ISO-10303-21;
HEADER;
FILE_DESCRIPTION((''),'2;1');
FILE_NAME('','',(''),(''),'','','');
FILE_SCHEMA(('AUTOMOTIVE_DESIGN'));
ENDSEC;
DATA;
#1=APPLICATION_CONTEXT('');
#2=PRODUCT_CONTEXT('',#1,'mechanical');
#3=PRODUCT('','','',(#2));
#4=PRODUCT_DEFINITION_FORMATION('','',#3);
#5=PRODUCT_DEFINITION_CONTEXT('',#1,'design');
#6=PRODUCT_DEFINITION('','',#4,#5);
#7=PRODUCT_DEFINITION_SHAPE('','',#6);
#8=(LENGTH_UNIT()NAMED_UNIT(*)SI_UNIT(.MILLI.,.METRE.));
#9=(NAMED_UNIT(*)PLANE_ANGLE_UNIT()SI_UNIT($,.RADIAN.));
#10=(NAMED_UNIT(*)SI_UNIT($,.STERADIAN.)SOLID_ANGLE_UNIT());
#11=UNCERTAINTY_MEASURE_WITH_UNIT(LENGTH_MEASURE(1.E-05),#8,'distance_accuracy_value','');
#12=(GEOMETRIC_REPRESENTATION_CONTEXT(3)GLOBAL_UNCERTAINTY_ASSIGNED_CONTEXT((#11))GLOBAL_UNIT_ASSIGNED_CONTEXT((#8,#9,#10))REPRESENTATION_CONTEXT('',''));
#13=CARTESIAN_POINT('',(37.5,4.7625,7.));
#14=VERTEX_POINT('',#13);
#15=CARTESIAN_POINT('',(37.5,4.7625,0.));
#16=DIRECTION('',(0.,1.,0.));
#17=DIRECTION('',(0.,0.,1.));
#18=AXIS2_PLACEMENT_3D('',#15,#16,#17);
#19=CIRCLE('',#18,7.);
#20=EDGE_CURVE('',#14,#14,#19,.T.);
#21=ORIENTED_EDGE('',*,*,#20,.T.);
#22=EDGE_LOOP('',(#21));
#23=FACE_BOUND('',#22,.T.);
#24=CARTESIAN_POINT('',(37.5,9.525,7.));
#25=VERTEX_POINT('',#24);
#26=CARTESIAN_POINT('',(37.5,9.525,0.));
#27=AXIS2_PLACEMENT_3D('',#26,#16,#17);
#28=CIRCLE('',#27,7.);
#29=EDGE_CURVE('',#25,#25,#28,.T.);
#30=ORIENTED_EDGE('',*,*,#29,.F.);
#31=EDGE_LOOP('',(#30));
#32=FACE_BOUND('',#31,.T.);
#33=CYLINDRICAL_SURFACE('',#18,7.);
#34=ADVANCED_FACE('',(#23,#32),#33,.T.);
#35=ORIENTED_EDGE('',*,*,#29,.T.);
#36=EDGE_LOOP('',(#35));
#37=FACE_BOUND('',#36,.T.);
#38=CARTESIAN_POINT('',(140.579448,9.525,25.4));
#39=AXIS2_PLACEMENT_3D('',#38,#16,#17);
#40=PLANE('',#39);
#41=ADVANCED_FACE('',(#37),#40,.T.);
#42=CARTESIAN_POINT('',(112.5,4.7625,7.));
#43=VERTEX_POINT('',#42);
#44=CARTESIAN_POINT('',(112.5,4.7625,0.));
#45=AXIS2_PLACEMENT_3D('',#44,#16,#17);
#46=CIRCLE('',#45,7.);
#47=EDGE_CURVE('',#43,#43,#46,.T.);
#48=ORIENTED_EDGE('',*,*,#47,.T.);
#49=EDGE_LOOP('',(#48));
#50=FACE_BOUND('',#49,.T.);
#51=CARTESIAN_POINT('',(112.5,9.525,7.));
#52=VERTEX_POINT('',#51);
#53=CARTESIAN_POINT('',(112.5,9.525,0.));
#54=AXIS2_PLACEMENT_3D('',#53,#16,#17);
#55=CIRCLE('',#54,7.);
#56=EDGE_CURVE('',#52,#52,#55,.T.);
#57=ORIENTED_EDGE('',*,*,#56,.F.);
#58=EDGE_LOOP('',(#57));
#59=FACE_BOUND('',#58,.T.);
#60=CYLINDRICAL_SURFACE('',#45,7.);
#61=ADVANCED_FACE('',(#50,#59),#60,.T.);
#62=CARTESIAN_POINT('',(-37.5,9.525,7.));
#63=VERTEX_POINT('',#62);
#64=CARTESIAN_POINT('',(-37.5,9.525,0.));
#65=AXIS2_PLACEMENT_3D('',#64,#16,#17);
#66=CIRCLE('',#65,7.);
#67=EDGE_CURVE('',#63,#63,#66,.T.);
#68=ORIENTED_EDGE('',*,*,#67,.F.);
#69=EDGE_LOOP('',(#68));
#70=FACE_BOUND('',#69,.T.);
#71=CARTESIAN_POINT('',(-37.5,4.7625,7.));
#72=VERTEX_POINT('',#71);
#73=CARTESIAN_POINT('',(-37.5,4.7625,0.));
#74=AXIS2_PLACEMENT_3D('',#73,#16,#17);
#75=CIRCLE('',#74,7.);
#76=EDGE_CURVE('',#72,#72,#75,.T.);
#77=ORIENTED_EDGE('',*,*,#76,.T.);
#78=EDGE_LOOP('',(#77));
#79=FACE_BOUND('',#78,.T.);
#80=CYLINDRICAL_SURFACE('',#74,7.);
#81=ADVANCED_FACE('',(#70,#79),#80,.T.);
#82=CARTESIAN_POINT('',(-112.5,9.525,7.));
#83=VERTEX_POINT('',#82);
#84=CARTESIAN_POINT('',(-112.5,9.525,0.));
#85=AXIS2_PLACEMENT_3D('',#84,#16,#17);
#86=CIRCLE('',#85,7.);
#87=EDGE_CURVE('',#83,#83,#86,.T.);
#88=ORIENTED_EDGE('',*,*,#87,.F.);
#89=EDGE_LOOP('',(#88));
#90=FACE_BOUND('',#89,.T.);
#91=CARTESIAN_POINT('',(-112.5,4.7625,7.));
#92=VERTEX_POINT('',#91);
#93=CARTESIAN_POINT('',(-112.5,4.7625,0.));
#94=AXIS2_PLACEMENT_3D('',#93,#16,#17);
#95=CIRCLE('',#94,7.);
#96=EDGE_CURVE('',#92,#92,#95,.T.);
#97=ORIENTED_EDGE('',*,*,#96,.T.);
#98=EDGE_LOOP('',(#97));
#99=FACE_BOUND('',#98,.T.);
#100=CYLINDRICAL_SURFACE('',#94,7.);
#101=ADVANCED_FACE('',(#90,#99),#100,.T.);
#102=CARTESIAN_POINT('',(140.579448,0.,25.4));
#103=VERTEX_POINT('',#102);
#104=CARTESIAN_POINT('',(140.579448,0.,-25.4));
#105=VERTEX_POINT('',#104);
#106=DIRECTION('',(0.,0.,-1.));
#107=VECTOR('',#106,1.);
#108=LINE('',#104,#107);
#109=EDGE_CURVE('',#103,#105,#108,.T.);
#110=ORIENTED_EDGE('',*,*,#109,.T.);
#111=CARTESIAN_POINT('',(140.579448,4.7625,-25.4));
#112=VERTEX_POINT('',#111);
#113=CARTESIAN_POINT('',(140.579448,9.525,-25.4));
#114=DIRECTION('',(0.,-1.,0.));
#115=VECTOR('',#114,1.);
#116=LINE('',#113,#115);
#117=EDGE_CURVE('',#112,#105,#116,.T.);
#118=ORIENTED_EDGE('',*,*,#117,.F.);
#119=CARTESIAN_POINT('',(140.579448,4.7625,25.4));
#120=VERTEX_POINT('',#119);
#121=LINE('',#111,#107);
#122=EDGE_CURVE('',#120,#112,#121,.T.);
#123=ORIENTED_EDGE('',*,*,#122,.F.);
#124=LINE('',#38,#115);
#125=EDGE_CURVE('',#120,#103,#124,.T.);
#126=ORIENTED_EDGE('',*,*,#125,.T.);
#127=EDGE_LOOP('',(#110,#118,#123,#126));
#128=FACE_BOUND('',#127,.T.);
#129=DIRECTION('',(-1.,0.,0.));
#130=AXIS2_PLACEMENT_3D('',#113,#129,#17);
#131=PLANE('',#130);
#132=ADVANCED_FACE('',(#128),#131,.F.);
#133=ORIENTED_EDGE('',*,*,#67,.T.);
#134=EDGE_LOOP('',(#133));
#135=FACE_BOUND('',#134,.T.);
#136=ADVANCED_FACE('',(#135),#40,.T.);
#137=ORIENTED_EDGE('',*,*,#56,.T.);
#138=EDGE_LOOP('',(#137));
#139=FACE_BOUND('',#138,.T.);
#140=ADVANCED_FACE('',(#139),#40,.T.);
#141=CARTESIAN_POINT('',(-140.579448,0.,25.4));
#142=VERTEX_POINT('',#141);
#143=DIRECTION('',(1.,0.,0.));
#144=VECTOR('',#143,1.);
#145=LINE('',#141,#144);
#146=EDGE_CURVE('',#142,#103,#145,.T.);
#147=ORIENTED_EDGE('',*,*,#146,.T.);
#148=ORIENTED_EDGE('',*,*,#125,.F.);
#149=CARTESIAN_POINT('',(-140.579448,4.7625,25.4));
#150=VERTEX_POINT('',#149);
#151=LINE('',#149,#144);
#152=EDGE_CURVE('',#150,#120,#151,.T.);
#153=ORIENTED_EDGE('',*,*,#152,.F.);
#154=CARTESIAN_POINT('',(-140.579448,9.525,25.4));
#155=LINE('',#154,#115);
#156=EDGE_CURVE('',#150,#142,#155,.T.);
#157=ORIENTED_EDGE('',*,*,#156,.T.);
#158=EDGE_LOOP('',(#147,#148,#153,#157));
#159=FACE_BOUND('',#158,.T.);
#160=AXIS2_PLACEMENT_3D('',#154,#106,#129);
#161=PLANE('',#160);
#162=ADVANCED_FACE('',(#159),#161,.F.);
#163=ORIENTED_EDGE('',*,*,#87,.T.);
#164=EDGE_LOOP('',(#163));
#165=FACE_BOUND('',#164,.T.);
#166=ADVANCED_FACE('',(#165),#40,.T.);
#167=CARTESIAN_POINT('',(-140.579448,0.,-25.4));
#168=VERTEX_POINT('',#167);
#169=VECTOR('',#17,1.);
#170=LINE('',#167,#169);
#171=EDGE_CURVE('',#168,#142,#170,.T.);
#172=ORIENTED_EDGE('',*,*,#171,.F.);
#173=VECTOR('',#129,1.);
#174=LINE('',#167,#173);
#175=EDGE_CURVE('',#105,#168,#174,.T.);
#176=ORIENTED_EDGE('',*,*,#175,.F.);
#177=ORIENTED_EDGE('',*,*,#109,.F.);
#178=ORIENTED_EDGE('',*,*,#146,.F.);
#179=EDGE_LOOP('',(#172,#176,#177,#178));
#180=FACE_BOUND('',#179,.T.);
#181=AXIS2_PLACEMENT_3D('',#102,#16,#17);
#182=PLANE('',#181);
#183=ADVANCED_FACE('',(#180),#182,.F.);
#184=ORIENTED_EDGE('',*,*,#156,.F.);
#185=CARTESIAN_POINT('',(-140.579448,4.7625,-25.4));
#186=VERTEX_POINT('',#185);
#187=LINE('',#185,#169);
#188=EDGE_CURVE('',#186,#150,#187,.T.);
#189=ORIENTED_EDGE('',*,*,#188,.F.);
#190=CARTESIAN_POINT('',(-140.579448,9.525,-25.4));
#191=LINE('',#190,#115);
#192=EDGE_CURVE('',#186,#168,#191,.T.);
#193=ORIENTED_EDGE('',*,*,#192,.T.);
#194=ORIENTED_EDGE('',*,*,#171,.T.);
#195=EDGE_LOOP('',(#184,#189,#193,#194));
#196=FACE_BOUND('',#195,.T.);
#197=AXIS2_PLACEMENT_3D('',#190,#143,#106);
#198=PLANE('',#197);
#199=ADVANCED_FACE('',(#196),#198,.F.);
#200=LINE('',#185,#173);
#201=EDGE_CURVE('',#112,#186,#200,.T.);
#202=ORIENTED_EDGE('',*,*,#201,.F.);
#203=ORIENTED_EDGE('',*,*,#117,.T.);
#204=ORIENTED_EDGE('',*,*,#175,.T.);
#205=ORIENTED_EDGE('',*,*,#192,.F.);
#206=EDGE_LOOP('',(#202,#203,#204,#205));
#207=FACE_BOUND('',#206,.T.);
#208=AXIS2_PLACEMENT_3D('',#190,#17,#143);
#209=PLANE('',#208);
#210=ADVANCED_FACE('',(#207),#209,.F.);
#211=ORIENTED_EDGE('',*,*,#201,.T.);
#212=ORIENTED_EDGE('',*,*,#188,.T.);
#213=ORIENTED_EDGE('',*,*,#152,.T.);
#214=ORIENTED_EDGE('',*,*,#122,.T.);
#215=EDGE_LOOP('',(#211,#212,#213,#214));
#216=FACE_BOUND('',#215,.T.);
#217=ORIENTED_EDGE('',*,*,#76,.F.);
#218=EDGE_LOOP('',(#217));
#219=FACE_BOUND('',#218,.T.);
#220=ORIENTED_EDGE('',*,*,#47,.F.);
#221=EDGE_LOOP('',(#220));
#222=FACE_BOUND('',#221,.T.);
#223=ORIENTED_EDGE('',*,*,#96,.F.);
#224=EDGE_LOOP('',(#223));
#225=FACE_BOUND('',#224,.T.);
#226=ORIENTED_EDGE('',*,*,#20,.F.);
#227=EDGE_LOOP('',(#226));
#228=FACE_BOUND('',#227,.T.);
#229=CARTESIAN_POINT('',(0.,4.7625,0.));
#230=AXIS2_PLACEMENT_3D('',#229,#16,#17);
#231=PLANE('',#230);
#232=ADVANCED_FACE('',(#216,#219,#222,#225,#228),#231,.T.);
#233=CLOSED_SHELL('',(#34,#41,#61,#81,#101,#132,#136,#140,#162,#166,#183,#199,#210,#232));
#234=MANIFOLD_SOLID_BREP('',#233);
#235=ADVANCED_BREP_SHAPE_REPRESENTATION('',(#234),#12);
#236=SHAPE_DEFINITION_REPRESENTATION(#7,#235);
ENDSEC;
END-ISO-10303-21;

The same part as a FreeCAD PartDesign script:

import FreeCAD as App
import Part
import Sketcher
Q = App.Units.Quantity

doc = App.newDocument("Part")
params = doc.addObject("Spreadsheet::Sheet", "Params")
for row, (alias, value) in enumerate([
    ("sketch1_height", "2 in"),
    ("pad1_length", "0.375 in"),
    ("pocket1_length", "0.1875 in"),
], start=1):
    params.set(f"A{row}", alias)
    params.set(f"B{row}", "=" + value)
    params.setAlias(f"B{row}", alias)

body = doc.addObject("PartDesign::Body", "Body")

# Sketch on XZ plane
sketch1 = body.newObject("Sketcher::SketchObject", "Sketch")
sketch1.AttachmentSupport = (doc.getObject("XZ_Plane"), [""])
sketch1.MapMode = "FlatFace"
sketch1.addGeometry([
    Part.LineSegment(App.Vector(-140.579448, -25.4, 0), App.Vector(-140.579448, 25.4, 0)),
    Part.LineSegment(App.Vector(-140.579448, 25.4, 0), App.Vector(140.579448, 25.4, 0)),
    Part.LineSegment(App.Vector(140.579448, 25.4, 0), App.Vector(140.579448, -25.4, 0)),
    Part.LineSegment(App.Vector(140.579448, -25.4, 0), App.Vector(-140.579448, -25.4, 0)),
], False)
sketch1.addConstraint([
    Sketcher.Constraint("Coincident", 0, 2, 1, 1),
    Sketcher.Constraint("Coincident", 1, 2, 2, 1),
    Sketcher.Constraint("Coincident", 2, 2, 3, 1),
    Sketcher.Constraint("Coincident", 3, 2, 0, 1),
    Sketcher.Constraint("Vertical", 0),
    Sketcher.Constraint("Horizontal", 1),
    Sketcher.Constraint("Vertical", 2),
    Sketcher.Constraint("Horizontal", 3),
    Sketcher.Constraint("Symmetric", 0, 2, 2, 2, -1, 1),
    Sketcher.Constraint("DistanceY", 0, 1, 0, 2, Q("2 in")),
    Sketcher.Constraint("DistanceX", 1, 1, 1, 2, Q("281.158897 mm")),
])
sketch1.setExpression("Constraints[9]", "Params.sketch1_height")
pad1 = body.newObject("PartDesign::Pad", "Pad")
pad1.Profile = sketch1
pad1.setExpression("Length", "Params.pad1_length")
pad1.Reversed = True

# Sketch on XZ plane
sketch2 = body.newObject("Sketcher::SketchObject", "Sketch001")
sketch2.AttachmentSupport = (doc.getObject("XZ_Plane"), [""])
sketch2.MapMode = "FlatFace"
sketch2.AttachmentOffset = App.Placement(App.Vector(0, 0, -0.375 * 25.4), App.Rotation())
sketch2.addGeometry([
    Part.LineSegment(App.Vector(-170.166, -54.987, 0), App.Vector(-170.166, 54.987, 0)),  # 0
    Part.LineSegment(App.Vector(-170.166, 54.987, 0), App.Vector(170.166, 54.987, 0)),  # 1
    Part.LineSegment(App.Vector(170.166, 54.987, 0), App.Vector(170.166, -54.987, 0)),  # 2
    Part.LineSegment(App.Vector(170.166, -54.987, 0), App.Vector(-170.166, -54.987, 0)),  # 3
    Part.Circle(App.Vector(-112.5, 0, 0), App.Vector(0, 0, 1), 7),  # 4
    Part.Circle(App.Vector(-37.5, 0, 0), App.Vector(0, 0, 1), 7),  # 5
    Part.Circle(App.Vector(37.5, 0, 0), App.Vector(0, 0, 1), 7),  # 6
    Part.Circle(App.Vector(112.5, 0, 0), App.Vector(0, 0, 1), 7),  # 7
], False)
sketch2.addConstraint([
    Sketcher.Constraint("Coincident", 0, 2, 1, 1),
    Sketcher.Constraint("Coincident", 1, 2, 2, 1),
    Sketcher.Constraint("Coincident", 2, 2, 3, 1),
    Sketcher.Constraint("Coincident", 3, 2, 0, 1),
    Sketcher.Constraint("Vertical", 0),
    Sketcher.Constraint("Horizontal", 1),
    Sketcher.Constraint("Vertical", 2),
    Sketcher.Constraint("Horizontal", 3),
    Sketcher.Constraint("Equal", 4, 5),
    Sketcher.Constraint("Equal", 5, 6),
    Sketcher.Constraint("Equal", 6, 7),
    Sketcher.Constraint("Symmetric", 5, 3, 6, 3, -1, 1),
    Sketcher.Constraint("Symmetric", 4, 3, 7, 3, -1, 1),
    Sketcher.Constraint("Symmetric", 0, 2, 2, 2, -1, 1),
    Sketcher.Constraint("PointOnObject", 4, 3, -1),
    Sketcher.Constraint("PointOnObject", 5, 3, -1),
    Sketcher.Constraint("Diameter", 4, Q("14 mm")),
    Sketcher.Constraint("DistanceX", 1, 1, 1, 2, Q("340.332 mm")),
    Sketcher.Constraint("DistanceY", 0, 1, 0, 2, Q("109.974 mm")),
    Sketcher.Constraint("DistanceX", 4, 3, -1, 1, Q("112.5 mm")),
    Sketcher.Constraint("DistanceX", 5, 3, -1, 1, Q("37.5 mm")),
])
pocket1 = body.newObject("PartDesign::Pocket", "Pocket")
pocket1.Profile = sketch2
pocket1.setExpression("Length", "Params.pocket1_length")
pocket1.Reversed = True

doc.recompute()
